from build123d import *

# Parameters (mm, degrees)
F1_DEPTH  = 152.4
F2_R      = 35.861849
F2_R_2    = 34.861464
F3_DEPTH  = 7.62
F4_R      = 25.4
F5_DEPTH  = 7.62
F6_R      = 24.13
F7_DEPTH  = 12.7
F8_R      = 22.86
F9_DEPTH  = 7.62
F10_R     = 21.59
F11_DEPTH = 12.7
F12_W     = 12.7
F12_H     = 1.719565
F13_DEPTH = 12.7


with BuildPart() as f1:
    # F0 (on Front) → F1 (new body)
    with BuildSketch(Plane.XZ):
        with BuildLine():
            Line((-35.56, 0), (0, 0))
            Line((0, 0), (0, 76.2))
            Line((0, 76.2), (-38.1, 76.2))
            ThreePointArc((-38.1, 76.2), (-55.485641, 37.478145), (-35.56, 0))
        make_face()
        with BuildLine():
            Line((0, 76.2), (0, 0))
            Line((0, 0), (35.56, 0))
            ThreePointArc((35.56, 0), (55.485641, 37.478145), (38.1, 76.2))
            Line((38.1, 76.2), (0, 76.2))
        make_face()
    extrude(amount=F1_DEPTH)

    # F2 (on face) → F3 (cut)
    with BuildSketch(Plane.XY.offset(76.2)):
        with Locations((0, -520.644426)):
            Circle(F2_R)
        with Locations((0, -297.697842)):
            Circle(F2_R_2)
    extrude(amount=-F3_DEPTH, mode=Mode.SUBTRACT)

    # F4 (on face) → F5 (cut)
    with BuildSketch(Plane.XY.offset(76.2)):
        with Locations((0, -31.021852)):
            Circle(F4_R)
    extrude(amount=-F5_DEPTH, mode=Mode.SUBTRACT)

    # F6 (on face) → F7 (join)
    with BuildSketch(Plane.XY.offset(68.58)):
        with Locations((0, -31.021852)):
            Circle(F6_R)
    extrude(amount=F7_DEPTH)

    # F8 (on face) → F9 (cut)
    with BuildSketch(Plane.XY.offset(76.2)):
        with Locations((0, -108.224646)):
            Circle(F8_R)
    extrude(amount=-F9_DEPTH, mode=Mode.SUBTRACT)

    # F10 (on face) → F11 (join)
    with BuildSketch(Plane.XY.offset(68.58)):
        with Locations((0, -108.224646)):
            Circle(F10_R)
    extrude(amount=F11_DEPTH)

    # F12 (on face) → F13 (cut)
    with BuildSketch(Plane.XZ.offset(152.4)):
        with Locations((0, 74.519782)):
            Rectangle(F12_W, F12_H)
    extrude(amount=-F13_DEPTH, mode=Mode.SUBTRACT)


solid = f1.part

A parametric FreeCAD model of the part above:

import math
import FreeCAD as App
import Part
import Sketcher

V = App.Vector
Q = App.Units.Quantity


def add_polygon(sketch, points):
    """Adds a closed chain of lines whose ends are joined by coincident constraints."""
    first, n = sketch.GeometryCount, len(points)
    for a, b in zip(points, points[1:] + points[:1]):
        sketch.addGeometry(Part.LineSegment(App.Vector(*a, 0), App.Vector(*b, 0)), False)
    for i in range(n):
        sketch.addConstraint(Sketcher.Constraint("Coincident", first + i, 2, first + (i + 1) % n, 1))

doc = App.newDocument("Part")
body = doc.addObject("PartDesign::Body", "Body")

sketch1 = doc.addObject("Sketcher::SketchObject", "Sketch")
body.addObject(sketch1)
sketch1.AttachmentSupport = (doc.XZ_Plane, [""])
sketch1.MapMode = "FlatFace"
sketch1.addGeometry(Part.LineSegment(V(-36, 0, 0), V(36, 0, 0)), False)
sketch1.addGeometry(Part.ArcOfCircle(Part.Circle(V(7, 39, 0), V(0, 0, 1), 48), math.radians(-54), math.radians(50)), False)
sketch1.addGeometry(Part.LineSegment(V(38, 76, 0), V(-38, 76, 0)), False)
sketch1.addGeometry(Part.ArcOfCircle(Part.Circle(V(-7, 39, 0), V(0, 0, 1), 48), math.radians(130), math.radians(234)), False)
sketch1.addConstraint(Sketcher.Constraint("Coincident", 0, 2, 1, 1))
sketch1.addConstraint(Sketcher.Constraint("Coincident", 1, 2, 2, 1))
sketch1.addConstraint(Sketcher.Constraint("Coincident", 2, 2, 3, 1))
sketch1.addConstraint(Sketcher.Constraint("Coincident", 3, 2, 0, 1))
sketch1.addConstraint(Sketcher.Constraint("Horizontal", 0))
sketch1.addConstraint(Sketcher.Constraint("Horizontal", 2))
sketch1.addConstraint(Sketcher.Constraint("Equal", 1, 3))
sketch1.addConstraint(Sketcher.Constraint("Symmetric", 0, 2, 3, 2, -1, 1))
sketch1.addConstraint(Sketcher.Constraint("Horizontal", 1, 3, 3, 3))
sketch1.addConstraint(Sketcher.Constraint("Radius", 1, Q("1.9 in")))
sketch1.addConstraint(Sketcher.Constraint("DistanceX", 2, 2, 2, 1, Q("3 in")))
sketch1.addConstraint(Sketcher.Constraint("DistanceX", 0, 1, 0, 2, Q("2.8 in")))
sketch1.addConstraint(Sketcher.Constraint("DistanceY", -1, 1, 1, 2, Q("3 in")))
pad1 = doc.addObject("PartDesign::Pad", "Pad")
body.addObject(pad1)
pad1.Profile = sketch1
pad1.Length = Q("6 in")

sketch2 = doc.addObject("Sketcher::SketchObject", "Sketch001")
body.addObject(sketch2)
sketch2.AttachmentSupport = (doc.XY_Plane, [""])
sketch2.MapMode = "FlatFace"
sketch2.AttachmentOffset = App.Placement(V(0, 0, 3 * 25.4), App.Rotation())
sketch2.addGeometry(Part.Circle(V(0, -521, 0), V(0, 0, 1), 36), False)
sketch2.addGeometry(Part.Circle(V(0, -298, 0), V(0, 0, 1), 35), False)
sketch2.addConstraint(Sketcher.Constraint("PointOnObject", 0, 3, -2))
sketch2.addConstraint(Sketcher.Constraint("PointOnObject", 1, 3, -2))
sketch2.addConstraint(Sketcher.Constraint("Diameter", 0, 71.723698))
sketch2.addConstraint(Sketcher.Constraint("Diameter", 1, 69.722928))
sketch2.addConstraint(Sketcher.Constraint("DistanceY", 1, 3, -1, 1, 297.697842))
sketch2.addConstraint(Sketcher.Constraint("DistanceY", 0, 3, -1, 1, 520.644426))
pocket1 = doc.addObject("PartDesign::Pocket", "Pocket")
body.addObject(pocket1)
pocket1.Profile = sketch2
pocket1.Length = Q("0.3 in")

sketch3 = doc.addObject("Sketcher::SketchObject", "Sketch002")
body.addObject(sketch3)
sketch3.AttachmentSupport = (doc.XY_Plane, [""])
sketch3.MapMode = "FlatFace"
sketch3.AttachmentOffset = App.Placement(V(0, 0, 3 * 25.4), App.Rotation())
sketch3.addGeometry(Part.Circle(V(0, -31, 0), V(0, 0, 1), 25), False)
sketch3.addConstraint(Sketcher.Constraint("PointOnObject", 0, 3, -2))
sketch3.addConstraint(Sketcher.Constraint("Diameter", 0, Q("2 in")))
sketch3.addConstraint(Sketcher.Constraint("DistanceY", 0, 3, -1, 1, 31.021852))
pocket2 = doc.addObject("PartDesign::Pocket", "Pocket001")
body.addObject(pocket2)
pocket2.Profile = sketch3
pocket2.Length = Q("0.3 in")

sketch4 = doc.addObject("Sketcher::SketchObject", "Sketch003")
body.addObject(sketch4)
sketch4.AttachmentSupport = (doc.XY_Plane, [""])
sketch4.MapMode = "FlatFace"
sketch4.AttachmentOffset = App.Placement(V(0, 0, 2.7 * 25.4), App.Rotation())
sketch4.addGeometry(Part.Circle(V(0, -31, 0), V(0, 0, 1), 24), False)
sketch4.addConstraint(Sketcher.Constraint("PointOnObject", 0, 3, -2))
sketch4.addConstraint(Sketcher.Constraint("Diameter", 0, Q("1.9 in")))
sketch4.addConstraint(Sketcher.Constraint("DistanceY", 0, 3, -1, 1, 31.021852))
pad2 = doc.addObject("PartDesign::Pad", "Pad001")
body.addObject(pad2)
pad2.Profile = sketch4
pad2.Length = Q("0.5 in")

sketch5 = doc.addObject("Sketcher::SketchObject", "Sketch004")
body.addObject(sketch5)
sketch5.AttachmentSupport = (doc.XY_Plane, [""])
sketch5.MapMode = "FlatFace"
sketch5.AttachmentOffset = App.Placement(V(0, 0, 3 * 25.4), App.Rotation())
sketch5.addGeometry(Part.Circle(V(0, -108, 0), V(0, 0, 1), 23), False)
sketch5.addConstraint(Sketcher.Constraint("PointOnObject", 0, 3, -2))
sketch5.addConstraint(Sketcher.Constraint("Diameter", 0, Q("1.8 in")))
sketch5.addConstraint(Sketcher.Constraint("DistanceY", 0, 3, -1, 1, 108.224646))
pocket3 = doc.addObject("PartDesign::Pocket", "Pocket002")
body.addObject(pocket3)
pocket3.Profile = sketch5
pocket3.Length = Q("0.3 in")

sketch6 = doc.addObject("Sketcher::SketchObject", "Sketch005")
body.addObject(sketch6)
sketch6.AttachmentSupport = (doc.XY_Plane, [""])
sketch6.MapMode = "FlatFace"
sketch6.AttachmentOffset = App.Placement(V(0, 0, 2.7 * 25.4), App.Rotation())
sketch6.addGeometry(Part.Circle(V(0, -108, 0), V(0, 0, 1), 22), False)
sketch6.addConstraint(Sketcher.Constraint("PointOnObject", 0, 3, -2))
sketch6.addConstraint(Sketcher.Constraint("Diameter", 0, Q("1.7 in")))
sketch6.addConstraint(Sketcher.Constraint("DistanceY", 0, 3, -1, 1, 108.224646))
pad3 = doc.addObject("PartDesign::Pad", "Pad002")
body.addObject(pad3)
pad3.Profile = sketch6
pad3.Length = Q("0.5 in")

sketch7 = doc.addObject("Sketcher::SketchObject", "Sketch006")
body.addObject(sketch7)
sketch7.AttachmentSupport = (doc.XZ_Plane, [""])
sketch7.MapMode = "FlatFace"
sketch7.AttachmentOffset = App.Placement(V(0, 0, 6 * 25.4), App.Rotation())
add_polygon(sketch7, [(-6.3, 75.4), (-6.3, 73.7), (6.3, 73.7), (6.3, 75.4)])
sketch7.addConstraint(Sketcher.Constraint("Vertical", 0))
sketch7.addConstraint(Sketcher.Constraint("Horizontal", 1))
sketch7.addConstraint(Sketcher.Constraint("Vertical", 2))
sketch7.addConstraint(Sketcher.Constraint("Horizontal", 3))
sketch7.addConstraint(Sketcher.Constraint("DistanceX", 1, 1, 1, 2, Q("0.5 in")))
sketch7.addConstraint(Sketcher.Constraint("DistanceY", -1, 1, 0, 2, Q("2.9 in")))
sketch7.addConstraint(Sketcher.Constraint("DistanceX", 0, 2, -1, 1, Q("0.25 in")))
sketch7.addConstraint(Sketcher.Constraint("DistanceY", 0, 2, 0, 1, 1.719565))
pocket4 = doc.addObject("PartDesign::Pocket", "Pocket003")
body.addObject(pocket4)
pocket4.Profile = sketch7
pocket4.Length = Q("0.5 in")

doc.recompute()
